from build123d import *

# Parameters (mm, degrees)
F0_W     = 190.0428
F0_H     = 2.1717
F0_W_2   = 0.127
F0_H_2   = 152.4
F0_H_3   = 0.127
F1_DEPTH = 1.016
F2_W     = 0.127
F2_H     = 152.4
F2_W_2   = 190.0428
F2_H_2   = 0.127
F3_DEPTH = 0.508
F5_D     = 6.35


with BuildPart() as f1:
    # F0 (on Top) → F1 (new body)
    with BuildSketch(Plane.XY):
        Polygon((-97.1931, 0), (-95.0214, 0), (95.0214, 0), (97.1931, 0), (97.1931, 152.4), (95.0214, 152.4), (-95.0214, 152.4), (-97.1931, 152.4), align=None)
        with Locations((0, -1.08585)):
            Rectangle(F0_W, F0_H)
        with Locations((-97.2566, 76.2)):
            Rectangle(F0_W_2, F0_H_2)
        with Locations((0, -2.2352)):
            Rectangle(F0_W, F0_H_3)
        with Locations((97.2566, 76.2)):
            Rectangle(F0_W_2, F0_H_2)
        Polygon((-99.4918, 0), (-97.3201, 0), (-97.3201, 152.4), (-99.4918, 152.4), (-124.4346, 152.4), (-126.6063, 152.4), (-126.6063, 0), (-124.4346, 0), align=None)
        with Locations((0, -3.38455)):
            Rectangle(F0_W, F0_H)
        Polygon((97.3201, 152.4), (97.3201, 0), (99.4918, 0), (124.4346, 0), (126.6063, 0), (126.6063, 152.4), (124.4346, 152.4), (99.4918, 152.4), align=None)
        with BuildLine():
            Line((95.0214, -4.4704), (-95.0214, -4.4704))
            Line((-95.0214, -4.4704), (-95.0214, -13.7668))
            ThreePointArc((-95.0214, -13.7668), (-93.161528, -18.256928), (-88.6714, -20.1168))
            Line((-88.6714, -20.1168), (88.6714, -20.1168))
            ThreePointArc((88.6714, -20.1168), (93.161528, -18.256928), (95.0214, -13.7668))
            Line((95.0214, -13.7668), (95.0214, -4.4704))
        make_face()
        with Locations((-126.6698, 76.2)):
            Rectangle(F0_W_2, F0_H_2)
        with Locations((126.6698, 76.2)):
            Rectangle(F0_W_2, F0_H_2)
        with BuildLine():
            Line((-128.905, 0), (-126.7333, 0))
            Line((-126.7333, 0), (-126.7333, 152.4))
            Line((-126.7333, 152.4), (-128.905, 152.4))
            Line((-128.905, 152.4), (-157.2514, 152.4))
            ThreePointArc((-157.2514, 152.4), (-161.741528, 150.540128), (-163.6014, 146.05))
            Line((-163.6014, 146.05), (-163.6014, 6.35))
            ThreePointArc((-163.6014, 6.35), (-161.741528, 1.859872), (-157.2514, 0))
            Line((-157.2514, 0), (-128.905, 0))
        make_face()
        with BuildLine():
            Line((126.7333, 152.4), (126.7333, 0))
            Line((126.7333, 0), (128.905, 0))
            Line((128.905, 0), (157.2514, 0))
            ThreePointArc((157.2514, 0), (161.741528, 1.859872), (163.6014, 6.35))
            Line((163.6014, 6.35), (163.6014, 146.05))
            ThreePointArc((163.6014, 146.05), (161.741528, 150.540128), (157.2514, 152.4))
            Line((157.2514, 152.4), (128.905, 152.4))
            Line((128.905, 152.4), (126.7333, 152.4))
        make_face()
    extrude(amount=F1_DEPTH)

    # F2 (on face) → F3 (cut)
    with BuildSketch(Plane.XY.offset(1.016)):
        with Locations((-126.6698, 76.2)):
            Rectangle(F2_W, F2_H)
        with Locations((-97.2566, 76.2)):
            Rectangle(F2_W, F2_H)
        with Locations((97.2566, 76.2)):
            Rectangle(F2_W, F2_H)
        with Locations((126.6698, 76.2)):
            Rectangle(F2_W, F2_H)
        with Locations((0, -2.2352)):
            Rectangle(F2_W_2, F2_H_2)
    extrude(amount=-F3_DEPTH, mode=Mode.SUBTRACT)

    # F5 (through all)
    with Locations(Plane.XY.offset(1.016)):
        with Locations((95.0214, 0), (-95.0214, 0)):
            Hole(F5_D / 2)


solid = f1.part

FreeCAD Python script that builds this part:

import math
import FreeCAD as App
import Part
import Sketcher

V = App.Vector
Q = App.Units.Quantity

doc = App.newDocument("Part")
body = doc.addObject("PartDesign::Body", "Body")

# Sketch on XY plane
sketch1 = body.newObject("Sketcher::SketchObject", "Sketch")
sketch1.AttachmentSupport = (doc.getObject("XY_Plane"), [""])
sketch1.MapMode = "FlatFace"
sketch1.addGeometry(Part.LineSegment(V(-95.0214, 0, 0), V(-95.0214, -13.7668, 0)), False)
sketch1.addGeometry(Part.ArcOfCircle(Part.Circle(V(-88.6714, -13.7668, 0), V(0, 0, 1), 6.35), math.radians(-179.999998), math.radians(-90.000002)), False)
sketch1.addGeometry(Part.LineSegment(V(-88.6714, -20.1168, 0), V(88.6714, -20.1168, 0)), False)
sketch1.addGeometry(Part.ArcOfCircle(Part.Circle(V(88.6714, -13.7668, 0), V(0, 0, 1), 6.35), math.radians(-89.999998), math.radians(-0.000002)), False)
sketch1.addGeometry(Part.LineSegment(V(95.0214, -13.7668, 0), V(95.0214, 0, 0)), False)
sketch1.addGeometry(Part.LineSegment(V(95.0214, 0, 0), V(157.2514, 0, 0)), False)
sketch1.addGeometry(Part.ArcOfCircle(Part.Circle(V(157.2514, 6.35, 0), V(0, 0, 1), 6.35), math.radians(-89.999998), math.radians(-0.000002)), False)
sketch1.addGeometry(Part.LineSegment(V(163.6014, 6.35, 0), V(163.6014, 146.05, 0)), False)
sketch1.addGeometry(Part.ArcOfCircle(Part.Circle(V(157.2514, 146.05, 0), V(0, 0, 1), 6.35), math.radians(0.000002), math.radians(89.999998)), False)
sketch1.addGeometry(Part.LineSegment(V(157.2514, 152.4, 0), V(-157.2514, 152.4, 0)), False)
sketch1.addGeometry(Part.ArcOfCircle(Part.Circle(V(-157.2514, 146.05, 0), V(0, 0, 1), 6.35), math.radians(90.000002), math.radians(179.999998)), False)
sketch1.addGeometry(Part.LineSegment(V(-163.6014, 146.05, 0), V(-163.6014, 6.35, 0)), False)
sketch1.addGeometry(Part.ArcOfCircle(Part.Circle(V(-157.2514, 6.35, 0), V(0, 0, 1), 6.35), math.radians(-179.999998), math.radians(-90.000002)), False)
sketch1.addGeometry(Part.LineSegment(V(-157.2514, 0, 0), V(-95.0214, 0, 0)), False)
sketch1.addConstraint(Sketcher.Constraint("Tangent", 0, 2, 1, 1))
sketch1.addConstraint(Sketcher.Constraint("Tangent", 1, 2, 2, 1))
sketch1.addConstraint(Sketcher.Constraint("Tangent", 2, 2, 3, 1))
sketch1.addConstraint(Sketcher.Constraint("Tangent", 3, 2, 4, 1))
sketch1.addConstraint(Sketcher.Constraint("Coincident", 4, 2, 5, 1))
sketch1.addConstraint(Sketcher.Constraint("Tangent", 5, 2, 6, 1))
sketch1.addConstraint(Sketcher.Constraint("Tangent", 6, 2, 7, 1))
sketch1.addConstraint(Sketcher.Constraint("Tangent", 7, 2, 8, 1))
sketch1.addConstraint(Sketcher.Constraint("Tangent", 8, 2, 9, 1))
sketch1.addConstraint(Sketcher.Constraint("Tangent", 9, 2, 10, 1))
sketch1.addConstraint(Sketcher.Constraint("Tangent", 10, 2, 11, 1))
sketch1.addConstraint(Sketcher.Constraint("Tangent", 11, 2, 12, 1))
sketch1.addConstraint(Sketcher.Constraint("Tangent", 12, 2, 13, 1))
sketch1.addConstraint(Sketcher.Constraint("Coincident", 13, 2, 0, 1))
sketch1.addConstraint(Sketcher.Constraint("Vertical", 0))
sketch1.addConstraint(Sketcher.Constraint("Horizontal", 2))
sketch1.addConstraint(Sketcher.Constraint("Vertical", 4))
sketch1.addConstraint(Sketcher.Constraint("Horizontal", 5))
sketch1.addConstraint(Sketcher.Constraint("Vertical", 7))
sketch1.addConstraint(Sketcher.Constraint("Horizontal", 9))
sketch1.addConstraint(Sketcher.Constraint("Vertical", 11))
sketch1.addConstraint(Sketcher.Constraint("Horizontal", 13))
sketch1.addConstraint(Sketcher.Constraint("Equal", 1, 3))
sketch1.addConstraint(Sketcher.Constraint("Equal", 3, 6))
sketch1.addConstraint(Sketcher.Constraint("Equal", 6, 8))
sketch1.addConstraint(Sketcher.Constraint("Equal", 8, 10))
sketch1.addConstraint(Sketcher.Constraint("Equal", 10, 12))
sketch1.addConstraint(Sketcher.Constraint("Symmetric", 5, 2, 12, 2, -1, 1))
sketch1.addConstraint(Sketcher.Constraint("Symmetric", 4, 2, 13, 2, -2))
sketch1.addConstraint(Sketcher.Constraint("Radius", 1, Q("0.25 in")))
sketch1.addConstraint(Sketcher.Constraint("DistanceY", 7, 1, 7, 2, Q("5.5 in")))
sketch1.addConstraint(Sketcher.Constraint("DistanceX", 5, 1, 5, 2, Q("2.45 in")))
sketch1.addConstraint(Sketcher.Constraint("DistanceX", 2, 1, 2, 2, Q("6.982 in")))
sketch1.addConstraint(Sketcher.Constraint("DistanceY", 0, 2, 0, 1, Q("0.542 in")))
pad1 = body.newObject("PartDesign::Pad", "Pad")
pad1.Profile = sketch1
pad1.Length = Q("0.04 in")

# Sketch on XY plane
sketch2 = body.newObject("Sketcher::SketchObject", "Sketch001")
sketch2.AttachmentSupport = (doc.getObject("XY_Plane"), [""])
sketch2.MapMode = "FlatFace"
sketch2.AttachmentOffset = App.Placement(V(0, 0, 0.04 * 25.4), App.Rotation())
sketch2.addGeometry(Part.LineSegment(V(-126.7333, 152.4, 0), V(-126.7333, 0, 0)), False)
sketch2.addGeometry(Part.LineSegment(V(-126.7333, 0, 0), V(-126.6063, 0, 0)), False)
sketch2.addGeometry(Part.LineSegment(V(-126.6063, 0, 0), V(-126.6063, 152.4, 0)), False)
sketch2.addGeometry(Part.LineSegment(V(-126.6063, 152.4, 0), V(-126.7333, 152.4, 0)), False)
sketch2.addGeometry(Part.LineSegment(V(-97.3201, 152.4, 0), V(-97.3201, 0, 0)), False)
sketch2.addGeometry(Part.LineSegment(V(-97.3201, 0, 0), V(-97.1931, 0, 0)), False)
sketch2.addGeometry(Part.LineSegment(V(-97.1931, 0, 0), V(-97.1931, 152.4, 0)), False)
sketch2.addGeometry(Part.LineSegment(V(-97.1931, 152.4, 0), V(-97.3201, 152.4, 0)), False)
sketch2.addGeometry(Part.LineSegment(V(97.1931, 152.4, 0), V(97.1931, 0, 0)), False)
sketch2.addGeometry(Part.LineSegment(V(97.1931, 0, 0), V(97.3201, 0, 0)), False)
sketch2.addGeometry(Part.LineSegment(V(97.3201, 0, 0), V(97.3201, 152.4, 0)), False)
sketch2.addGeometry(Part.LineSegment(V(97.3201, 152.4, 0), V(97.1931, 152.4, 0)), False)
sketch2.addGeometry(Part.LineSegment(V(126.6063, 152.4, 0), V(126.6063, 0, 0)), False)
sketch2.addGeometry(Part.LineSegment(V(126.6063, 0, 0), V(126.7333, 0, 0)), False)
sketch2.addGeometry(Part.LineSegment(V(126.7333, 0, 0), V(126.7333, 152.4, 0)), False)
sketch2.addGeometry(Part.LineSegment(V(126.7333, 152.4, 0), V(126.6063, 152.4, 0)), False)
sketch2.addGeometry(Part.LineSegment(V(-95.0214, -2.1717, 0), V(-95.0214, -2.2987, 0)), False)
sketch2.addGeometry(Part.LineSegment(V(-95.0214, -2.2987, 0), V(95.0214, -2.2987, 0)), False)
sketch2.addGeometry(Part.LineSegment(V(95.0214, -2.2987, 0), V(95.0214, -2.1717, 0)), False)
sketch2.addGeometry(Part.LineSegment(V(95.0214, -2.1717, 0), V(-95.0214, -2.1717, 0)), False)
sketch2.addConstraint(Sketcher.Constraint("Coincident", 0, 2, 1, 1))
sketch2.addConstraint(Sketcher.Constraint("Coincident", 1, 2, 2, 1))
sketch2.addConstraint(Sketcher.Constraint("Coincident", 2, 2, 3, 1))
sketch2.addConstraint(Sketcher.Constraint("Coincident", 3, 2, 0, 1))
sketch2.addConstraint(Sketcher.Constraint("Coincident", 4, 2, 5, 1))
sketch2.addConstraint(Sketcher.Constraint("Coincident", 5, 2, 6, 1))
sketch2.addConstraint(Sketcher.Constraint("Coincident", 6, 2, 7, 1))
sketch2.addConstraint(Sketcher.Constraint("Coincident", 7, 2, 4, 1))
sketch2.addConstraint(Sketcher.Constraint("Coincident", 8, 2, 9, 1))
sketch2.addConstraint(Sketcher.Constraint("Coincident", 9, 2, 10, 1))
sketch2.addConstraint(Sketcher.Constraint("Coincident", 10, 2, 11, 1))
sketch2.addConstraint(Sketcher.Constraint("Coincident", 11, 2, 8, 1))
sketch2.addConstraint(Sketcher.Constraint("Coincident", 12, 2, 13, 1))
sketch2.addConstraint(Sketcher.Constraint("Coincident", 13, 2, 14, 1))
sketch2.addConstraint(Sketcher.Constraint("Coincident", 14, 2, 15, 1))
sketch2.addConstraint(Sketcher.Constraint("Coincident", 15, 2, 12, 1))
sketch2.addConstraint(Sketcher.Constraint("Coincident", 16, 2, 17, 1))
sketch2.addConstraint(Sketcher.Constraint("Coincident", 17, 2, 18, 1))
sketch2.addConstraint(Sketcher.Constraint("Coincident", 18, 2, 19, 1))
sketch2.addConstraint(Sketcher.Constraint("Coincident", 19, 2, 16, 1))
sketch2.addConstraint(Sketcher.Constraint("Vertical", 0))
sketch2.addConstraint(Sketcher.Constraint("Horizontal", 1))
sketch2.addConstraint(Sketcher.Constraint("Vertical", 2))
sketch2.addConstraint(Sketcher.Constraint("Horizontal", 3))
sketch2.addConstraint(Sketcher.Constraint("Vertical", 4))
sketch2.addConstraint(Sketcher.Constraint("Horizontal", 5))
sketch2.addConstraint(Sketcher.Constraint("Vertical", 6))
sketch2.addConstraint(Sketcher.Constraint("Horizontal", 7))
sketch2.addConstraint(Sketcher.Constraint("Vertical", 8))
sketch2.addConstraint(Sketcher.Constraint("Horizontal", 9))
sketch2.addConstraint(Sketcher.Constraint("Vertical", 10))
sketch2.addConstraint(Sketcher.Constraint("Horizontal", 11))
sketch2.addConstraint(Sketcher.Constraint("Vertical", 12))
sketch2.addConstraint(Sketcher.Constraint("Horizontal", 13))
sketch2.addConstraint(Sketcher.Constraint("Vertical", 14))
sketch2.addConstraint(Sketcher.Constraint("Horizontal", 15))
sketch2.addConstraint(Sketcher.Constraint("Vertical", 16))
sketch2.addConstraint(Sketcher.Constraint("Horizontal", 17))
sketch2.addConstraint(Sketcher.Constraint("Vertical", 18))
sketch2.addConstraint(Sketcher.Constraint("Horizontal", 19))
sketch2.addConstraint(Sketcher.Constraint("Symmetric", 5, 2, 8, 2, -1, 1))
sketch2.addConstraint(Sketcher.Constraint("Symmetric", 1, 2, 12, 2, -1, 1))
sketch2.addConstraint(Sketcher.Constraint("Symmetric", 4, 2, 9, 2, -2))
sketch2.addConstraint(Sketcher.Constraint("Symmetric", 0, 2, 13, 2, -2))
sketch2.addConstraint(Sketcher.Constraint("Horizontal", 3, 2, 6, 2))
sketch2.addConstraint(Sketcher.Constraint("Horizontal", 7, 2, 10, 2))
sketch2.addConstraint(Sketcher.Constraint("Horizontal", 11, 2, 14, 2))
sketch2.addConstraint(Sketcher.Constraint("Equal", 3, 5))
sketch2.addConstraint(Sketcher.Constraint("Equal", 15, 16))
sketch2.addConstraint(Sketcher.Constraint("DistanceY", 0, 2, 0, 1, Q("6 in")))
sketch2.addConstraint(Sketcher.Constraint("DistanceX", 1, 1, 1, 2, Q("0.005 in")))
sketch2.addConstraint(Sketcher.Constraint("DistanceX", 17, 1, 17, 2, Q("7.482 in")))
sketch2.addConstraint(Sketcher.Constraint("DistanceX", 16, 2, -1, 1, Q("3.741 in")))
sketch2.addConstraint(Sketcher.Constraint("DistanceX", 1, 2, 4, 2, Q("1.153 in")))
sketch2.addConstraint(Sketcher.Constraint("DistanceX", 5, 2, 8, 2, Q("7.653 in")))
sketch2.addConstraint(Sketcher.Constraint("DistanceY", 16, 2, -1, 1, Q("0.0905 in")))
pocket1 = body.newObject("PartDesign::Pocket", "Pocket")
pocket1.Profile = sketch2
pocket1.Length = Q("0.02 in")

# Sketch on XY plane
sketch3 = body.newObject("Sketcher::SketchObject", "Sketch002")
sketch3.AttachmentSupport = (doc.getObject("XY_Plane"), [""])
sketch3.MapMode = "FlatFace"
sketch3.AttachmentOffset = App.Placement(V(0, 0, 0.04 * 25.4), App.Rotation())
sketch3.addGeometry(Part.Circle(V(95.0214, 0, 0), V(0, 0, 1), 3.175), False)
sketch3.addGeometry(Part.Circle(V(-95.0214, 0, 0), V(0, 0, 1), 3.175), False)
sketch3.addConstraint(Sketcher.Constraint("Equal", 0, 1))
sketch3.addConstraint(Sketcher.Constraint("Symmetric", 0, 3, 1, 3, -1, 1))
sketch3.addConstraint(Sketcher.Constraint("PointOnObject", 0, 3, -1))
sketch3.addConstraint(Sketcher.Constraint("Diameter", 0, Q("0.25 in")))
sketch3.addConstraint(Sketcher.Constraint("DistanceX", -1, 1, 0, 3, Q("3.741 in")))
doc.recompute()
hole = body.newObject("PartDesign::Hole", "Hole")
hole.Profile = sketch3
hole.ThreadType = "None"
hole.Diameter = Q("0.25 in")
hole.DepthType = "ThroughAll"

doc.recompute()
